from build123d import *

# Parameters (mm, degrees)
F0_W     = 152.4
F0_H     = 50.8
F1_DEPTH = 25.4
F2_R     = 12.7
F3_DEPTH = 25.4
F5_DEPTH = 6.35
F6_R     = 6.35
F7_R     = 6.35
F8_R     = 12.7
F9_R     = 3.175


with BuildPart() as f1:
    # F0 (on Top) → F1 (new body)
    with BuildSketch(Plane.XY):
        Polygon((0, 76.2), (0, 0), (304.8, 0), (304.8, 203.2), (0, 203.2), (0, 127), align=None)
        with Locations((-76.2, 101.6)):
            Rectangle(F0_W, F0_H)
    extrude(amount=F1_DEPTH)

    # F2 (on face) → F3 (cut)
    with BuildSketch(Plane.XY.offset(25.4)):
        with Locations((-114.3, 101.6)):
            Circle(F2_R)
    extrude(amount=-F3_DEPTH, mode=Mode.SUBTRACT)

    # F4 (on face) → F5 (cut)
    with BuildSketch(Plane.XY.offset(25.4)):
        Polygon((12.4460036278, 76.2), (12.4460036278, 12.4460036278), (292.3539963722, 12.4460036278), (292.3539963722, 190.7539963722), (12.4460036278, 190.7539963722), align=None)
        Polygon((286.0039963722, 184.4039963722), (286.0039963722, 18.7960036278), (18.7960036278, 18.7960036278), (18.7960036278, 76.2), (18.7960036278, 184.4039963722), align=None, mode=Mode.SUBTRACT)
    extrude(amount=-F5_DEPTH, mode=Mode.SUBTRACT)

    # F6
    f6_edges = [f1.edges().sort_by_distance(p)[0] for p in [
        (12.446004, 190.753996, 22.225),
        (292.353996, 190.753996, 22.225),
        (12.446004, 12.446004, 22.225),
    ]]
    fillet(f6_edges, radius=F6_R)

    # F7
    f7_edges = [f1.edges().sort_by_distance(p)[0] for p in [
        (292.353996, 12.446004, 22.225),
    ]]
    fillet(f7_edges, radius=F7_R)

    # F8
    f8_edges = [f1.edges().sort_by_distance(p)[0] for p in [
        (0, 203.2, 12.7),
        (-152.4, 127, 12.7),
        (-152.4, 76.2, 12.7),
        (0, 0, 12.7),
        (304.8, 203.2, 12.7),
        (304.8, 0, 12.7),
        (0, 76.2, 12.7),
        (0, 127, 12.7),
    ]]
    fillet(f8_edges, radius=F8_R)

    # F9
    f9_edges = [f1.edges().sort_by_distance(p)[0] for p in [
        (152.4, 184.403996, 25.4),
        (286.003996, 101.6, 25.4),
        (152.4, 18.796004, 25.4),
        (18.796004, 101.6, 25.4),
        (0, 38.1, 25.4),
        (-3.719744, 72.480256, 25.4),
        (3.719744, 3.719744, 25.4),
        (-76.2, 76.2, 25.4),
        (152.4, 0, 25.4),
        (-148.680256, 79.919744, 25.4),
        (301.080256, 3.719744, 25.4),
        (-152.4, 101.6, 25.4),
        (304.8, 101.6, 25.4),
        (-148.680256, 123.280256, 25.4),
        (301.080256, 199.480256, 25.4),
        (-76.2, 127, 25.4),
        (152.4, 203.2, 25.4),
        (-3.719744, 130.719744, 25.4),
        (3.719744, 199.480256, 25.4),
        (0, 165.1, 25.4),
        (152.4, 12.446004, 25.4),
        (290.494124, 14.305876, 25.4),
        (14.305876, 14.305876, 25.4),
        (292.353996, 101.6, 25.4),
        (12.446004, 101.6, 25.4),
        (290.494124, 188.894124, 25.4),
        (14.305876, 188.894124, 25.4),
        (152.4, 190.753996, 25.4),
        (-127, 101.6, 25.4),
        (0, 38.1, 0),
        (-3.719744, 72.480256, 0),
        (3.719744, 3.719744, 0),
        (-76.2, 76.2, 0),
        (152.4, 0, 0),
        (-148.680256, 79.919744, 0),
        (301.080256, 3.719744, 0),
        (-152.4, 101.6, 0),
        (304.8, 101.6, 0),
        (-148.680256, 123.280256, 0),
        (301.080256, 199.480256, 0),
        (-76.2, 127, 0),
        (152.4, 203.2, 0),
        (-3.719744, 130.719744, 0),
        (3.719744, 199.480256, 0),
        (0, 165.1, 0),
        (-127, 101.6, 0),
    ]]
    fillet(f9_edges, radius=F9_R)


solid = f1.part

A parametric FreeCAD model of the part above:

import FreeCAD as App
import Part
import Sketcher
Q = App.Units.Quantity


def edges_at(feature, points):
    """Names of the edges that pass closest to the given points."""
    edges = feature.Shape.Edges
    near = lambda p: min(range(len(edges)), key=lambda i: edges[i].distToShape(Part.Vertex(*p))[0])
    return sorted({f"Edge{near(p) + 1}" for p in points})


def add_polygon(sketch, points):
    """Adds a closed chain of lines whose ends are joined by coincident constraints."""
    first, n = sketch.GeometryCount, len(points)
    for a, b in zip(points, points[1:] + points[:1]):
        sketch.addGeometry(Part.LineSegment(App.Vector(*a, 0), App.Vector(*b, 0)), False)
    for i in range(n):
        sketch.addConstraint(Sketcher.Constraint("Coincident", first + i, 2, first + (i + 1) % n, 1))

doc = App.newDocument("Part")
params = doc.addObject("Spreadsheet::Sheet", "Params")
for row, (alias, value) in enumerate([
    ("sketch1_width", "12 in"),
    ("sketch1_width2", "6 in"),
    ("sketch1_height", "8 in"),
    ("sketch1_height2", "3 in"),
    ("pad1_length", "1 in"),
    ("sketch2_diameter", "1 in"),
    ("pocket1_length", "1 in"),
    ("pocket2_length", "0.25 in"),
    ("fillet_radius", "0.25 in"),
    ("fillet2_radius", "0.25 in"),
    ("fillet3_radius", "0.5 in"),
    ("fillet4_radius", "0.125 in"),
], start=1):
    params.set(f"A{row}", alias)
    params.set(f"B{row}", "=" + value)
    params.setAlias(f"B{row}", alias)

body = doc.addObject("PartDesign::Body", "Body")

# Sketch on XY plane
sketch1 = body.newObject("Sketcher::SketchObject", "Sketch")
sketch1.AttachmentSupport = (doc.getObject("XY_Plane"), [""])
sketch1.MapMode = "FlatFace"
add_polygon(sketch1, [(0, 0), (305, 0), (305, 203), (0, 203), (0, 127), (-152, 127), (-152, 76), (0, 76)])  # lines 0-7
sketch1.addConstraint(Sketcher.Constraint("Horizontal", 0))
sketch1.addConstraint(Sketcher.Constraint("Vertical", 1))
sketch1.addConstraint(Sketcher.Constraint("Horizontal", 2))
sketch1.addConstraint(Sketcher.Constraint("Vertical", 3))
sketch1.addConstraint(Sketcher.Constraint("Horizontal", 4))
sketch1.addConstraint(Sketcher.Constraint("Vertical", 5))
sketch1.addConstraint(Sketcher.Constraint("Horizontal", 6))
sketch1.addConstraint(Sketcher.Constraint("Vertical", 7))
sketch1.addConstraint(Sketcher.Constraint("Coincident", 7, 2, -1, 1))
sketch1.addConstraint(Sketcher.Constraint("PointOnObject", 2, 2, -2))
sketch1.addConstraint(Sketcher.Constraint("Equal", 3, 7))
sketch1.addConstraint(Sketcher.Constraint("DistanceX", 0, 1, 0, 2, Q("12 in")))
sketch1.addConstraint(Sketcher.Constraint("DistanceX", 4, 2, 4, 1, Q("6 in")))
sketch1.addConstraint(Sketcher.Constraint("DistanceY", 1, 1, 1, 2, Q("8 in")))
sketch1.addConstraint(Sketcher.Constraint("DistanceY", 3, 2, 3, 1, Q("3 in")))
sketch1.setExpression("Constraints[19]", "Params.sketch1_width")
sketch1.setExpression("Constraints[20]", "Params.sketch1_width2")
sketch1.setExpression("Constraints[21]", "Params.sketch1_height")
sketch1.setExpression("Constraints[22]", "Params.sketch1_height2")
pad1 = body.newObject("PartDesign::Pad", "Pad")
pad1.Profile = sketch1
pad1.setExpression("Length", "Params.pad1_length")

# Sketch on XY plane
sketch2 = body.newObject("Sketcher::SketchObject", "Sketch001")
sketch2.AttachmentSupport = (doc.getObject("XY_Plane"), [""])
sketch2.MapMode = "FlatFace"
sketch2.AttachmentOffset = App.Placement(App.Vector(0, 0, 1 * 25.4), App.Rotation())
sketch2.addGeometry(Part.Circle(App.Vector(-114, 102, 0), App.Vector(0, 0, 1), 13), False)
sketch2.addConstraint(Sketcher.Constraint("Diameter", 0, Q("1 in")))
sketch2.addConstraint(Sketcher.Constraint("DistanceY", -1, 1, 0, 3, Q("4 in")))
sketch2.addConstraint(Sketcher.Constraint("DistanceX", 0, 3, -1, 1, Q("4.5 in")))
sketch2.setExpression("Constraints[0]", "Params.sketch2_diameter")
pocket1 = body.newObject("PartDesign::Pocket", "Pocket")
pocket1.Profile = sketch2
pocket1.setExpression("Length", "Params.pocket1_length")

# Sketch on XY plane
sketch3 = body.newObject("Sketcher::SketchObject", "Sketch002")
sketch3.AttachmentSupport = (doc.getObject("XY_Plane"), [""])
sketch3.MapMode = "FlatFace"
sketch3.AttachmentOffset = App.Placement(App.Vector(0, 0, 1 * 25.4), App.Rotation())
add_polygon(sketch3, [(12, 12), (292, 12), (292, 191), (12, 191)])  # lines 0-3
add_polygon(sketch3, [(19, 184), (286, 184), (286, 19), (19, 19)])  # lines 4-7
sketch3.addConstraint(Sketcher.Constraint("Horizontal", 0))
sketch3.addConstraint(Sketcher.Constraint("Vertical", 1))
sketch3.addConstraint(Sketcher.Constraint("Horizontal", 2))
sketch3.addConstraint(Sketcher.Constraint("Vertical", 3))
sketch3.addConstraint(Sketcher.Constraint("Horizontal", 4))
sketch3.addConstraint(Sketcher.Constraint("Vertical", 5))
sketch3.addConstraint(Sketcher.Constraint("Horizontal", 6))
sketch3.addConstraint(Sketcher.Constraint("Vertical", 7))
sketch3.addConstraint(Sketcher.Constraint("DistanceX", -1, 1, 0, 2, Q("11.5099999 in")))
sketch3.addConstraint(Sketcher.Constraint("DistanceY", -1, 1, 0, 2, Q("0.4900001 in")))
sketch3.addConstraint(Sketcher.Constraint("DistanceY", -1, 1, 1, 2, Q("7.5099999 in")))
sketch3.addConstraint(Sketcher.Constraint("DistanceX", -1, 1, 2, 2, Q("0.4900001 in")))
sketch3.addConstraint(Sketcher.Constraint("DistanceX", -1, 1, 4, 2, Q("11.2599999 in")))
sketch3.addConstraint(Sketcher.Constraint("DistanceY", -1, 1, 4, 2, Q("7.2599999 in")))
sketch3.addConstraint(Sketcher.Constraint("DistanceY", -1, 1, 5, 2, Q("0.7400001 in")))
sketch3.addConstraint(Sketcher.Constraint("DistanceX", -1, 1, 6, 2, Q("0.7400001 in")))
pocket2 = body.newObject("PartDesign::Pocket", "Pocket001")
pocket2.Profile = sketch3
pocket2.setExpression("Length", "Params.pocket2_length")
doc.recompute()

fillet = body.newObject("PartDesign::Fillet", "Fillet")
fillet.Base = (pocket2, edges_at(pocket2, [(12.446, 190.754, 22.225), (292.354, 190.754, 22.225), (12.446, 12.446, 22.225)]))
fillet.setExpression("Radius", "Params.fillet_radius")
doc.recompute()

fillet2 = body.newObject("PartDesign::Fillet", "Fillet001")
fillet2.Base = (fillet, edges_at(fillet, [(292.354, 12.446, 22.225)]))
fillet2.setExpression("Radius", "Params.fillet2_radius")
doc.recompute()

fillet3 = body.newObject("PartDesign::Fillet", "Fillet002")
fillet3.Base = (fillet2, edges_at(fillet2, [
    (0, 203.2, 12.7),
    (-152.4, 127, 12.7),
    (-152.4, 76.2, 12.7),
    (0, 0, 12.7),
    (304.8, 203.2, 12.7),
    (304.8, 0, 12.7),
    (0, 76.2, 12.7),
    (0, 127, 12.7),
]))
fillet3.setExpression("Radius", "Params.fillet3_radius")
doc.recompute()

fillet4 = body.newObject("PartDesign::Fillet", "Fillet003")
fillet4.Base = (fillet3, edges_at(fillet3, [
    (152.4, 184.404, 25.4),
    (286.004, 101.6, 25.4),
    (152.4, 18.796, 25.4),
    (18.796, 101.6, 25.4),
    (0, 38.1, 25.4),
    (-3.72, 72.48, 25.4),
    (3.72, 3.72, 25.4),
    (-76.2, 76.2, 25.4),
    (152.4, 0, 25.4),
    (-148.68, 79.92, 25.4),
    (301.08, 3.72, 25.4),
    (-152.4, 101.6, 25.4),
    (304.8, 101.6, 25.4),
    (-148.68, 123.28, 25.4),
    (301.08, 199.48, 25.4),
    (-76.2, 127, 25.4),
    (152.4, 203.2, 25.4),
    (-3.72, 130.72, 25.4),
    (3.72, 199.48, 25.4),
    (0, 165.1, 25.4),
    (152.4, 12.446, 25.4),
    (290.494, 14.306, 25.4),
    (14.306, 14.306, 25.4),
    (292.354, 101.6, 25.4),
    (12.446, 101.6, 25.4),
    (290.494, 188.894, 25.4),
    (14.306, 188.894, 25.4),
    (152.4, 190.754, 25.4),
    (-127, 101.6, 25.4),
    (0, 38.1, 0),
    (-3.72, 72.48, 0),
    (3.72, 3.72, 0),
    (-76.2, 76.2, 0),
    (152.4, 0, 0),
    (-148.68, 79.92, 0),
    (301.08, 3.72, 0),
    (-152.4, 101.6, 0),
    (304.8, 101.6, 0),
    (-148.68, 123.28, 0),
    (301.08, 199.48, 0),
    (-76.2, 127, 0),
    (152.4, 203.2, 0),
    (-3.72, 130.72, 0),
    (3.72, 199.48, 0),
    (0, 165.1, 0),
    (-127, 101.6, 0),
]))
fillet4.setExpression("Radius", "Params.fillet4_radius")

doc.recompute()
